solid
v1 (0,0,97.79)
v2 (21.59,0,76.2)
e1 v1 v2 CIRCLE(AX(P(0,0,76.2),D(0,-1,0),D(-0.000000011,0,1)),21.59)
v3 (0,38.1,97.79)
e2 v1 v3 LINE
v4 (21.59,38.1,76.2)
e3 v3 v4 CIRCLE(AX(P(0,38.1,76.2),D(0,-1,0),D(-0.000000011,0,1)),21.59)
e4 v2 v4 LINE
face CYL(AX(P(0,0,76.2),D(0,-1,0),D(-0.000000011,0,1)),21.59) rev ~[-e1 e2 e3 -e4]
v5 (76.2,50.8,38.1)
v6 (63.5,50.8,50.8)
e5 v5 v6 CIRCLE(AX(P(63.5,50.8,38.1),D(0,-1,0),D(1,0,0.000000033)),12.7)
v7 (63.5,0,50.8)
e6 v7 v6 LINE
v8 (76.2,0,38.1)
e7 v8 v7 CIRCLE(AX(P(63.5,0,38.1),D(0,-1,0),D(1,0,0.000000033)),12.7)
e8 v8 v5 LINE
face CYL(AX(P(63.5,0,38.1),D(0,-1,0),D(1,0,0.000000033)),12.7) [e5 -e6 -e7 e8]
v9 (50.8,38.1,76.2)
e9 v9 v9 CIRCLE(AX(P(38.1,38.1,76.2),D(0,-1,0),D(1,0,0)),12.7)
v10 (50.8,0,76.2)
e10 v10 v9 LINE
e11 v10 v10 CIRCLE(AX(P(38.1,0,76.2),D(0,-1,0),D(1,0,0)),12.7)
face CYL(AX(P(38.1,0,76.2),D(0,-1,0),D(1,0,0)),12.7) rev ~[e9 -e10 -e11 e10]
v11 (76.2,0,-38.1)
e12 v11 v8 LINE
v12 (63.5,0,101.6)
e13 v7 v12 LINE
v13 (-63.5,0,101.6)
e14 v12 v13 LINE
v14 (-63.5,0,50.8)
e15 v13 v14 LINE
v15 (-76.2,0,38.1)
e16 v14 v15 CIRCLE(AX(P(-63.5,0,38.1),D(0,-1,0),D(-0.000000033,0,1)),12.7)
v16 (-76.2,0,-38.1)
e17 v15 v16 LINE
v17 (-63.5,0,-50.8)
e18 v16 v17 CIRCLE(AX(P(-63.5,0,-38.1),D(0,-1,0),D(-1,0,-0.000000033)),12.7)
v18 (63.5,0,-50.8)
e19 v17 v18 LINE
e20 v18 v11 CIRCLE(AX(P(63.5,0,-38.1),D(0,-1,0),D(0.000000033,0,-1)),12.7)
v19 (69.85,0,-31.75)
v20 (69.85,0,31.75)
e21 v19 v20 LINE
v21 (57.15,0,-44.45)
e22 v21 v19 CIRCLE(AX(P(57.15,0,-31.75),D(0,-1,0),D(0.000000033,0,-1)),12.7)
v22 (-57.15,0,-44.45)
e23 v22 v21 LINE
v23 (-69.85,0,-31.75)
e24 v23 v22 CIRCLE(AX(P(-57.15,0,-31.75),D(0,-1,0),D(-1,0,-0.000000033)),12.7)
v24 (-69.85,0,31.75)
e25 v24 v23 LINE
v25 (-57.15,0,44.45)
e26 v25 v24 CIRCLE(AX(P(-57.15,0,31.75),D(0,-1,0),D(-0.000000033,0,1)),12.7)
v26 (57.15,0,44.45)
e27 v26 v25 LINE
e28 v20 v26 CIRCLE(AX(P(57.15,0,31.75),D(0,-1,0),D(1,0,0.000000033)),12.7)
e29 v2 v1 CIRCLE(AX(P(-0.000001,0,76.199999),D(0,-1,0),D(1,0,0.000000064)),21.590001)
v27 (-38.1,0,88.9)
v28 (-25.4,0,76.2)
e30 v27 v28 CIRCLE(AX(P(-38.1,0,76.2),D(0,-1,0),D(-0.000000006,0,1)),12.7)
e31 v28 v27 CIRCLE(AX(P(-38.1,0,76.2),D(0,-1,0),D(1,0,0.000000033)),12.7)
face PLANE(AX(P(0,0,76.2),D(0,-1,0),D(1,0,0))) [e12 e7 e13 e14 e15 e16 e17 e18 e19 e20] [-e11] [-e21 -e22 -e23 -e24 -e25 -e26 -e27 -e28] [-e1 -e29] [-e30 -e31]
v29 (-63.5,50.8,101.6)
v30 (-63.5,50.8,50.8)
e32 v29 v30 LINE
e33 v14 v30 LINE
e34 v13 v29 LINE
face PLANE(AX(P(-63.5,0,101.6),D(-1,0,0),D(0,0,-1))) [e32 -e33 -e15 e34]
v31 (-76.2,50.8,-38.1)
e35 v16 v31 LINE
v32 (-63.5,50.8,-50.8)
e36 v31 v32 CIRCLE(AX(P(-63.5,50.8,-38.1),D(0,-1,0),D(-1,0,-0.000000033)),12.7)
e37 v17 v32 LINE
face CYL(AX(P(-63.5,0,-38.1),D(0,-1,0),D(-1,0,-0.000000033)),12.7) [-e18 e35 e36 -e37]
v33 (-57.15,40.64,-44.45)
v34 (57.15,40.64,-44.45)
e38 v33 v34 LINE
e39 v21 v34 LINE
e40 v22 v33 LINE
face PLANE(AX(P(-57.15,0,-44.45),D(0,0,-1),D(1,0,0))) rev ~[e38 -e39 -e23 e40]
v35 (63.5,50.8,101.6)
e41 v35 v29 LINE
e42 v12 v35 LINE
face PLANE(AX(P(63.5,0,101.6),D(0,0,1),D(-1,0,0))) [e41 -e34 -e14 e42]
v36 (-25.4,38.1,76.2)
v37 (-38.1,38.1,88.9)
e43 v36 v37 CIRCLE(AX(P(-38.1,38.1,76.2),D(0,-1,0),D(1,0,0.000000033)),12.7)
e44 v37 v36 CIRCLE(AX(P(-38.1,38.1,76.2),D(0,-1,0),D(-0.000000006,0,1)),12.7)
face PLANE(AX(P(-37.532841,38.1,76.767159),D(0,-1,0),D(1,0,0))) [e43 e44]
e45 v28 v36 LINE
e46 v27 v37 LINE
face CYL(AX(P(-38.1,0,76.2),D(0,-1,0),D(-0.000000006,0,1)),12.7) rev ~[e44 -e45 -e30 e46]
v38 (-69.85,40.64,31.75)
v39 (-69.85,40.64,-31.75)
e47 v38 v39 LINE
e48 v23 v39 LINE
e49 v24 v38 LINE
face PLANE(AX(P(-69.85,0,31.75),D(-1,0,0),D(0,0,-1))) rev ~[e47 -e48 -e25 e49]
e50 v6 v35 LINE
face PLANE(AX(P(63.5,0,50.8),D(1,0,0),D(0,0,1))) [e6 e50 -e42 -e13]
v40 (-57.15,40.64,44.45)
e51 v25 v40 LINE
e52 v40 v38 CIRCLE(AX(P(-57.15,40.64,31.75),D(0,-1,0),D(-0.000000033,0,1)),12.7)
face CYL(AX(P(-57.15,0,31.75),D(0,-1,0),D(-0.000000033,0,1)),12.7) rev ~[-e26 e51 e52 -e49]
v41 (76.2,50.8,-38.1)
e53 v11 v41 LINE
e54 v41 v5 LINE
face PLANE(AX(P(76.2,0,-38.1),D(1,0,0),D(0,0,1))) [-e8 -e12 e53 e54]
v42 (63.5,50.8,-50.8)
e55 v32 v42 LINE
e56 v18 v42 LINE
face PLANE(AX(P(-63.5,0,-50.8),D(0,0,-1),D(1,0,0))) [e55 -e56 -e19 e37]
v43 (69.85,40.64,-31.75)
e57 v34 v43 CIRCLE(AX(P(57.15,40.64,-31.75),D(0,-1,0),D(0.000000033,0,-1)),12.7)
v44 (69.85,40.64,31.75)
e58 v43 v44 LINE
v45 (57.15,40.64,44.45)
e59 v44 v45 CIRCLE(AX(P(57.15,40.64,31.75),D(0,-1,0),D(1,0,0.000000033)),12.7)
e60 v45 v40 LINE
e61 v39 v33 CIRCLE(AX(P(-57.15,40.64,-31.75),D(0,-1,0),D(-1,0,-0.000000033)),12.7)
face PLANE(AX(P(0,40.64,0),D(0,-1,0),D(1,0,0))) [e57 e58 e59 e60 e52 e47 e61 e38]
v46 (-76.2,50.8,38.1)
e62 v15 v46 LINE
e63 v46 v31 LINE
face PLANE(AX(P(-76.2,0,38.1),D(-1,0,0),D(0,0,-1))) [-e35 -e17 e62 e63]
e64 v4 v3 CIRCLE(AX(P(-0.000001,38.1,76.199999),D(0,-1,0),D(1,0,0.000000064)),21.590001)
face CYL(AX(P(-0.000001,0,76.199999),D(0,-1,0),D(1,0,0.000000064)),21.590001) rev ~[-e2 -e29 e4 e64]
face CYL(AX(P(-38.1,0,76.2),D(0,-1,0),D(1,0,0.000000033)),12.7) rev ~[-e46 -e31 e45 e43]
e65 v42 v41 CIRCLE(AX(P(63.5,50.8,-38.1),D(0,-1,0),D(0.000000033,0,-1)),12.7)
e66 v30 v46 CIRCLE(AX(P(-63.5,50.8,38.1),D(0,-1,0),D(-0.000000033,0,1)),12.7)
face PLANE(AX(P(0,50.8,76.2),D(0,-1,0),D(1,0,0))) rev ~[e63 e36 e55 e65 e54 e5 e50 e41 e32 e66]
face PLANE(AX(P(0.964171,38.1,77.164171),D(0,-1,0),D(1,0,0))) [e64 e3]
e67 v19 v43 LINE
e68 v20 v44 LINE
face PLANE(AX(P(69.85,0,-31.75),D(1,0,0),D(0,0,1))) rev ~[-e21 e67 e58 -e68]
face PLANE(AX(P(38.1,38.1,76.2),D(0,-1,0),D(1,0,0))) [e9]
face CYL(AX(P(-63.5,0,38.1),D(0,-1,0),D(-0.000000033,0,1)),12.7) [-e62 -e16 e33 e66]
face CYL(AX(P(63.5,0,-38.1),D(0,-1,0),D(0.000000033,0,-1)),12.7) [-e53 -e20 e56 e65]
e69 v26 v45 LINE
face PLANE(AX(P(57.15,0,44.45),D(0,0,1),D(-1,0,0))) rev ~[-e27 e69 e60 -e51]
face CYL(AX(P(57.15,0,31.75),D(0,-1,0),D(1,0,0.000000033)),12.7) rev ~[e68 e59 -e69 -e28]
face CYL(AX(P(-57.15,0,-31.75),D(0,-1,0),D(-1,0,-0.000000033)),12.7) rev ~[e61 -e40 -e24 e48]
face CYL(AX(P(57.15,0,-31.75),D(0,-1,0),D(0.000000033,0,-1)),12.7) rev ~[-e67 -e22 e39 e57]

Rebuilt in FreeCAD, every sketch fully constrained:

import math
import FreeCAD as App
import Part
import Sketcher
Q = App.Units.Quantity

doc = App.newDocument("Part")
body = doc.addObject("PartDesign::Body", "Body")

sketch1 = doc.addObject("Sketcher::SketchObject", "Sketch")
body.addObject(sketch1)
sketch1.AttachmentSupport = (doc.XZ_Plane, [""])
sketch1.MapMode = "FlatFace"
sketch1.addGeometry(Part.LineSegment(App.Vector(-63.5, -50.8, 0), App.Vector(63.5, -50.8, 0)), False)
sketch1.addGeometry(Part.ArcOfCircle(Part.Circle(App.Vector(63.5, -38.1, 0), App.Vector(0, 0, 1), 12.7), math.radians(-89.999998), math.radians(-0.000002)), False)
sketch1.addGeometry(Part.LineSegment(App.Vector(76.2, -38.1, 0), App.Vector(76.2, 38.1, 0)), False)
sketch1.addGeometry(Part.ArcOfCircle(Part.Circle(App.Vector(63.5, 38.1, 0), App.Vector(0, 0, 1), 12.7), math.radians(0.000002), math.radians(89.999998)), False)
sketch1.addGeometry(Part.LineSegment(App.Vector(63.5, 50.8, 0), App.Vector(-63.5, 50.8, 0)), False)
sketch1.addGeometry(Part.ArcOfCircle(Part.Circle(App.Vector(-63.5, 38.1, 0), App.Vector(0, 0, 1), 12.7), math.radians(90.000002), math.radians(179.999998)), False)
sketch1.addGeometry(Part.LineSegment(App.Vector(-76.2, 38.1, 0), App.Vector(-76.2, -38.1, 0)), False)
sketch1.addGeometry(Part.ArcOfCircle(Part.Circle(App.Vector(-63.5, -38.1, 0), App.Vector(0, 0, 1), 12.7), math.radians(-179.999998), math.radians(-90.000002)), False)
sketch1.addConstraint(Sketcher.Constraint("Tangent", 0, 2, 1, 1))
sketch1.addConstraint(Sketcher.Constraint("Tangent", 1, 2, 2, 1))
sketch1.addConstraint(Sketcher.Constraint("Tangent", 2, 2, 3, 1))
sketch1.addConstraint(Sketcher.Constraint("Tangent", 3, 2, 4, 1))
sketch1.addConstraint(Sketcher.Constraint("Tangent", 4, 2, 5, 1))
sketch1.addConstraint(Sketcher.Constraint("Tangent", 5, 2, 6, 1))
sketch1.addConstraint(Sketcher.Constraint("Tangent", 6, 2, 7, 1))
sketch1.addConstraint(Sketcher.Constraint("Tangent", 7, 2, 0, 1))
sketch1.addConstraint(Sketcher.Constraint("Horizontal", 0))
sketch1.addConstraint(Sketcher.Constraint("Vertical", 2))
sketch1.addConstraint(Sketcher.Constraint("Horizontal", 4))
sketch1.addConstraint(Sketcher.Constraint("Vertical", 6))
sketch1.addConstraint(Sketcher.Constraint("Equal", 1, 3))
sketch1.addConstraint(Sketcher.Constraint("Equal", 3, 5))
sketch1.addConstraint(Sketcher.Constraint("Equal", 5, 7))
sketch1.addConstraint(Sketcher.Constraint("Symmetric", 1, 3, 5, 3, -1, 1))
sketch1.addConstraint(Sketcher.Constraint("Radius", 1, Q("0.5 in")))
sketch1.addConstraint(Sketcher.Constraint("DistanceX", 0, 1, 0, 2, Q("5 in")))
sketch1.addConstraint(Sketcher.Constraint("DistanceY", 2, 1, 2, 2, Q("3 in")))
pad1 = doc.addObject("PartDesign::Pad", "Pad")
body.addObject(pad1)
pad1.Profile = sketch1
pad1.Length = Q("2 in")
pad1.Reversed = True

sketch2 = doc.addObject("Sketcher::SketchObject", "Sketch001")
body.addObject(sketch2)
sketch2.AttachmentSupport = (doc.XZ_Plane, [""])
sketch2.MapMode = "FlatFace"
sketch2.addGeometry(Part.LineSegment(App.Vector(-57.15, -44.45, 0), App.Vector(57.15, -44.45, 0)), False)
sketch2.addGeometry(Part.ArcOfCircle(Part.Circle(App.Vector(57.15, -31.75, 0), App.Vector(0, 0, 1), 12.7), math.radians(-89.999998), math.radians(-0.000002)), False)
sketch2.addGeometry(Part.LineSegment(App.Vector(69.85, -31.75, 0), App.Vector(69.85, 31.75, 0)), False)
sketch2.addGeometry(Part.ArcOfCircle(Part.Circle(App.Vector(57.15, 31.75, 0), App.Vector(0, 0, 1), 12.7), math.radians(0.000002), math.radians(89.999998)), False)
sketch2.addGeometry(Part.LineSegment(App.Vector(57.15, 44.45, 0), App.Vector(-57.15, 44.45, 0)), False)
sketch2.addGeometry(Part.ArcOfCircle(Part.Circle(App.Vector(-57.15, 31.75, 0), App.Vector(0, 0, 1), 12.7), math.radians(90.000002), math.radians(179.999998)), False)
sketch2.addGeometry(Part.LineSegment(App.Vector(-69.85, 31.75, 0), App.Vector(-69.85, -31.75, 0)), False)
sketch2.addGeometry(Part.ArcOfCircle(Part.Circle(App.Vector(-57.15, -31.75, 0), App.Vector(0, 0, 1), 12.7), math.radians(-179.999998), math.radians(-90.000002)), False)
sketch2.addConstraint(Sketcher.Constraint("Tangent", 0, 2, 1, 1))
sketch2.addConstraint(Sketcher.Constraint("Tangent", 1, 2, 2, 1))
sketch2.addConstraint(Sketcher.Constraint("Tangent", 2, 2, 3, 1))
sketch2.addConstraint(Sketcher.Constraint("Tangent", 3, 2, 4, 1))
sketch2.addConstraint(Sketcher.Constraint("Tangent", 4, 2, 5, 1))
sketch2.addConstraint(Sketcher.Constraint("Tangent", 5, 2, 6, 1))
sketch2.addConstraint(Sketcher.Constraint("Tangent", 6, 2, 7, 1))
sketch2.addConstraint(Sketcher.Constraint("Tangent", 7, 2, 0, 1))
sketch2.addConstraint(Sketcher.Constraint("Horizontal", 0))
sketch2.addConstraint(Sketcher.Constraint("Vertical", 2))
sketch2.addConstraint(Sketcher.Constraint("Horizontal", 4))
sketch2.addConstraint(Sketcher.Constraint("Vertical", 6))
sketch2.addConstraint(Sketcher.Constraint("Equal", 1, 3))
sketch2.addConstraint(Sketcher.Constraint("Equal", 3, 5))
sketch2.addConstraint(Sketcher.Constraint("Equal", 5, 7))
sketch2.addConstraint(Sketcher.Constraint("Symmetric", 1, 3, 5, 3, -1, 1))
sketch2.addConstraint(Sketcher.Constraint("Radius", 1, Q("0.5 in")))
sketch2.addConstraint(Sketcher.Constraint("DistanceX", 0, 1, 0, 2, Q("4.5 in")))
sketch2.addConstraint(Sketcher.Constraint("DistanceY", 2, 1, 2, 2, Q("2.5 in")))
pocket1 = doc.addObject("PartDesign::Pocket", "Pocket")
body.addObject(pocket1)
pocket1.Profile = sketch2
pocket1.Length = Q("1.6 in")

sketch3 = doc.addObject("Sketcher::SketchObject", "Sketch002")
body.addObject(sketch3)
sketch3.AttachmentSupport = (doc.XZ_Plane, [""])
sketch3.MapMode = "FlatFace"
sketch3.addGeometry(Part.LineSegment(App.Vector(-63.5, 50.8, 0), App.Vector(63.5, 50.8, 0)), False)
sketch3.addGeometry(Part.LineSegment(App.Vector(63.5, 50.8, 0), App.Vector(63.5, 101.6, 0)), False)
sketch3.addGeometry(Part.LineSegment(App.Vector(63.5, 101.6, 0), App.Vector(-63.5, 101.6, 0)), False)
sketch3.addGeometry(Part.LineSegment(App.Vector(-63.5, 101.6, 0), App.Vector(-63.5, 50.8, 0)), False)
sketch3.addConstraint(Sketcher.Constraint("Coincident", 0, 2, 1, 1))
sketch3.addConstraint(Sketcher.Constraint("Coincident", 1, 2, 2, 1))
sketch3.addConstraint(Sketcher.Constraint("Coincident", 2, 2, 3, 1))
sketch3.addConstraint(Sketcher.Constraint("Coincident", 3, 2, 0, 1))
sketch3.addConstraint(Sketcher.Constraint("Horizontal", 0))
sketch3.addConstraint(Sketcher.Constraint("Vertical", 1))
sketch3.addConstraint(Sketcher.Constraint("Horizontal", 2))
sketch3.addConstraint(Sketcher.Constraint("Vertical", 3))
sketch3.addConstraint(Sketcher.Constraint("DistanceX", 0, 1, 0, 2, Q("5 in")))
sketch3.addConstraint(Sketcher.Constraint("DistanceY", 1, 1, 1, 2, Q("2 in")))
sketch3.addConstraint(Sketcher.Constraint("DistanceY", -1, 1, 0, 2, Q("2 in")))
sketch3.addConstraint(Sketcher.Constraint("DistanceX", -1, 1, 0, 2, Q("2.5 in")))
pad2 = doc.addObject("PartDesign::Pad", "Pad001")
body.addObject(pad2)
pad2.Profile = sketch3
pad2.Length = Q("2 in")
pad2.Reversed = True

sketch4 = doc.addObject("Sketcher::SketchObject", "Sketch003")
body.addObject(sketch4)
sketch4.AttachmentSupport = (doc.XZ_Plane, [""])
sketch4.MapMode = "FlatFace"
sketch4.addGeometry(Part.ArcOfCircle(Part.Circle(App.Vector(-38.1, 76.2, 0), App.Vector(0, 0, 1), 12.7), math.radians(0.000002), math.radians(89.999998)), False)
sketch4.addGeometry(Part.ArcOfCircle(Part.Circle(App.Vector(-38.1, 76.2, 0), App.Vector(0, 0, 1), 12.7), math.radians(90), math.radians(360)), False)
sketch4.addGeometry(Part.ArcOfCircle(Part.Circle(App.Vector(-0.000001, 76.199999, 0), App.Vector(0, 0, 1), 21.590001), math.radians(0.000004), math.radians(89.999996)), False)
sketch4.addGeometry(Part.ArcOfCircle(Part.Circle(App.Vector(0, 76.2, 0), App.Vector(0, 0, 1), 21.59), math.radians(90.000001), math.radians(359.999999)), False)
sketch4.addGeometry(Part.Circle(App.Vector(38.1, 76.2, 0), App.Vector(0, 0, 1), 12.7), False)
sketch4.addConstraint(Sketcher.Constraint("Tangent", 0, 1, 1, 2))
sketch4.addConstraint(Sketcher.Constraint("Coincident", 1, 1, 0, 2))
sketch4.addConstraint(Sketcher.Constraint("Tangent", 2, 1, 3, 2))
sketch4.addConstraint(Sketcher.Constraint("Coincident", 3, 1, 2, 2))
sketch4.addConstraint(Sketcher.Constraint("Equal", 1, 4))
sketch4.addConstraint(Sketcher.Constraint("Symmetric", 0, 3, 4, 3, -2))
sketch4.addConstraint(Sketcher.Constraint("PointOnObject", 2, 3, -2))
sketch4.addConstraint(Sketcher.Constraint("PointOnObject", 3, 1, -2))
sketch4.addConstraint(Sketcher.Constraint("Horizontal", 1, 3, 2, 3))
sketch4.addConstraint(Sketcher.Constraint("Horizontal", 4, 3, 0, 1))
sketch4.addConstraint(Sketcher.Constraint("Horizontal", 0, 1, 2, 1))
sketch4.addConstraint(Sketcher.Constraint("Vertical", 0, 3, 1, 1))
sketch4.addConstraint(Sketcher.Constraint("Diameter", 4, Q("1 in")))
sketch4.addConstraint(Sketcher.Constraint("Radius", 2, Q("0.8500001 in")))
sketch4.addConstraint(Sketcher.Constraint("DistanceY", -1, 1, 0, 3, Q("3 in")))
sketch4.addConstraint(Sketcher.Constraint("DistanceX", 0, 1, -1, 1, Q("1 in")))
pocket2 = doc.addObject("PartDesign::Pocket", "Pocket001")
body.addObject(pocket2)
pocket2.Profile = sketch4
pocket2.Length = Q("1.5 in")

doc.recompute()
